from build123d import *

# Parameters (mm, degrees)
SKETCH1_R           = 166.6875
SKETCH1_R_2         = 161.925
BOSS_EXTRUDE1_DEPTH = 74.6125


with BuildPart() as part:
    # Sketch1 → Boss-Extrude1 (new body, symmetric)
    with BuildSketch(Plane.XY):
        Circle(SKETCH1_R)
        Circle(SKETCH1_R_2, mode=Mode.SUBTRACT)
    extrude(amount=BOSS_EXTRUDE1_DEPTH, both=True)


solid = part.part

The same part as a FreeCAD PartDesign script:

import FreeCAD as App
import Part
import Sketcher
Q = App.Units.Quantity

doc = App.newDocument("Part")
params = doc.addObject("Spreadsheet::Sheet", "Params")
for row, (alias, value) in enumerate([
    ("sketch1_diameter", "12.75 in"),
    ("sketch1_diameter2", "13.125 in"),
    ("pad1_length", "5.875 in"),
], start=1):
    params.set(f"A{row}", alias)
    params.set(f"B{row}", "=" + value)
    params.setAlias(f"B{row}", alias)

body = doc.addObject("PartDesign::Body", "Body")

# Sketch on XY plane
sketch1 = body.newObject("Sketcher::SketchObject", "Sketch")
sketch1.AttachmentSupport = (doc.getObject("XY_Plane"), [""])
sketch1.MapMode = "FlatFace"
sketch1.addGeometry([
    Part.Circle(App.Vector(0, 0, 0), App.Vector(0, 0, 1), 166.6875),
    Part.Circle(App.Vector(0, 0, 0), App.Vector(0, 0, 1), 161.925),
], False)
sketch1.addConstraint([
    Sketcher.Constraint("Coincident", 0, 3, -1, 1),
    Sketcher.Constraint("Coincident", 1, 3, -1, 1),
    Sketcher.Constraint("Diameter", 1, Q("12.75 in")),
    Sketcher.Constraint("Diameter", 0, Q("13.125 in")),
])
sketch1.setExpression("Constraints[2]", "Params.sketch1_diameter")
sketch1.setExpression("Constraints[3]", "Params.sketch1_diameter2")
pad1 = body.newObject("PartDesign::Pad", "Pad")
pad1.Profile = sketch1
pad1.setExpression("Length", "Params.pad1_length")
pad1.Midplane = True

doc.recompute()
